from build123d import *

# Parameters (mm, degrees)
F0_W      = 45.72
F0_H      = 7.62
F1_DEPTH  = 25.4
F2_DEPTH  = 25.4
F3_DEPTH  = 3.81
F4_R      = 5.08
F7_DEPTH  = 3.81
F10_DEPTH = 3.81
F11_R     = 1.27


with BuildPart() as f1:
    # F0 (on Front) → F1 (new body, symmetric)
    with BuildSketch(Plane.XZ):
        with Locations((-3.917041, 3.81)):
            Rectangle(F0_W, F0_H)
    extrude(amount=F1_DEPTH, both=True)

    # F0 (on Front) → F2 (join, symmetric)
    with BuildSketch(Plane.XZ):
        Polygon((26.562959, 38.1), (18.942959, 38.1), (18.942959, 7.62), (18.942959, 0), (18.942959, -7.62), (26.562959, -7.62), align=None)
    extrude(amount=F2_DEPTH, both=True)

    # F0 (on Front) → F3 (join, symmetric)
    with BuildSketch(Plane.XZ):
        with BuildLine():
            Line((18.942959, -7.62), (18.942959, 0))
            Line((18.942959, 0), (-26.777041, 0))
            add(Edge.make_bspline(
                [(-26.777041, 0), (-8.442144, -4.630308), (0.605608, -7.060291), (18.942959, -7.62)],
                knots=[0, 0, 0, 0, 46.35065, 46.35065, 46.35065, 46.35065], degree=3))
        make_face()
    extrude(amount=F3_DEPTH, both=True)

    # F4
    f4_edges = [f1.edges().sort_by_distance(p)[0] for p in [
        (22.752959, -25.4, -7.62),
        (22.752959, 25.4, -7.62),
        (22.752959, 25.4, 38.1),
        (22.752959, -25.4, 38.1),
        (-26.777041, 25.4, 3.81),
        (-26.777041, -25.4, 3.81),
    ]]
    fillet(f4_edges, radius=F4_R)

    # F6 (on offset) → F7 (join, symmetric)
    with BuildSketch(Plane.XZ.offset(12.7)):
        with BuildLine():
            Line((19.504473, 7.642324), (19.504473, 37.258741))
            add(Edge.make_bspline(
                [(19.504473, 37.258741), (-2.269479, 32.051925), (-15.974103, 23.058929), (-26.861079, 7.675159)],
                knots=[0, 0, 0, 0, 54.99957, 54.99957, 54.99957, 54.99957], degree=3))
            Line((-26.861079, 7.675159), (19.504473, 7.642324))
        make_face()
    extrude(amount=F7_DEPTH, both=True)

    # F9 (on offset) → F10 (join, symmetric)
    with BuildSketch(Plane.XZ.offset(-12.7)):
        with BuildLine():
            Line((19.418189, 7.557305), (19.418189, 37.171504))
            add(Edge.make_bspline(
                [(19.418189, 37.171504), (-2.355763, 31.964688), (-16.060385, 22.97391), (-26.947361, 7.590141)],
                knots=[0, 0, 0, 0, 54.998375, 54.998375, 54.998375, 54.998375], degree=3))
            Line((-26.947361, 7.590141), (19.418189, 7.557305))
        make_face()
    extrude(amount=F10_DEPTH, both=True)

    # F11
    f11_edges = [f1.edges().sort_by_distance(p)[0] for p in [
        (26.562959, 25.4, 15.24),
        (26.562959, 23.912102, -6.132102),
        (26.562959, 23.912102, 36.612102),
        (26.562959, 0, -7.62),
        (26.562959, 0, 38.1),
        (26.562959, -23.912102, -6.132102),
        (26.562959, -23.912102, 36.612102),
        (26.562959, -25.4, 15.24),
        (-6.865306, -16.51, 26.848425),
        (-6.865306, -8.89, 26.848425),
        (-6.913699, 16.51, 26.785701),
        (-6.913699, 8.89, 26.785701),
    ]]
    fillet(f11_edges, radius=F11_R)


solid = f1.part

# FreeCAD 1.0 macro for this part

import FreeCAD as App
import Part
import Sketcher

V = App.Vector
Q = App.Units.Quantity


def edges_at(feature, points):
    """Names of the edges that pass closest to the given points."""
    edges = feature.Shape.Edges
    near = lambda p: min(range(len(edges)), key=lambda i: edges[i].distToShape(Part.Vertex(*p))[0])
    return sorted({f"Edge{near(p) + 1}" for p in points})

doc = App.newDocument("Part")
params = doc.addObject("Spreadsheet::Sheet", "Params")
for row, (alias, value) in enumerate([
    ("sketch1_width", "1.8 in"),
    ("sketch1_height", "0.3 in"),
    ("pad1_length", "2 in"),
    ("sketch2_width", "0.3 in"),
    ("sketch2_height", "1.8 in"),
    ("pad2_length", "2 in"),
    ("pad3_length", "0.3 in"),
    ("fillet_radius", "0.2 in"),
    ("pad4_length", "0.3 in"),
    ("pad5_length", "0.3 in"),
    ("fillet2_radius", "0.05 in"),
], start=1):
    params.set(f"A{row}", alias)
    params.set(f"B{row}", "=" + value)
    params.setAlias(f"B{row}", alias)

body = doc.addObject("PartDesign::Body", "Body")

sketch1 = body.newObject("Sketcher::SketchObject", "Sketch")
sketch1.AttachmentSupport = (doc.getObject("XZ_Plane"), [""])
sketch1.MapMode = "FlatFace"
sketch1.addGeometry([
    Part.LineSegment(V(-27, 8, 0), V(-27, 0, 0)),
    Part.LineSegment(V(-27, 0, 0), V(19, 0, 0)),
    Part.LineSegment(V(19, 0, 0), V(19, 8, 0)),
    Part.LineSegment(V(19, 8, 0), V(-27, 8, 0)),
], False)
sketch1.addConstraint([
    Sketcher.Constraint("Coincident", 0, 2, 1, 1),
    Sketcher.Constraint("Coincident", 1, 2, 2, 1),
    Sketcher.Constraint("Coincident", 2, 2, 3, 1),
    Sketcher.Constraint("Coincident", 3, 2, 0, 1),
    Sketcher.Constraint("Vertical", 0),
    Sketcher.Constraint("Horizontal", 1),
    Sketcher.Constraint("Vertical", 2),
    Sketcher.Constraint("Horizontal", 3),
    Sketcher.Constraint("PointOnObject", 0, 2, -1),
    Sketcher.Constraint("DistanceX", 1, 1, 1, 2, Q("1.8 in")),
    Sketcher.Constraint("DistanceY", 0, 2, 0, 1, Q("0.3 in")),
    Sketcher.Constraint("DistanceX", 0, 2, -1, 1, Q("26.777041 mm")),
])
sketch1.setExpression("Constraints[9]", "Params.sketch1_width")
sketch1.setExpression("Constraints[10]", "Params.sketch1_height")
pad1 = body.newObject("PartDesign::Pad", "Pad")
pad1.Profile = sketch1
pad1.setExpression("Length", "Params.pad1_length")
pad1.Midplane = True

sketch2 = body.newObject("Sketcher::SketchObject", "Sketch001")
sketch2.AttachmentSupport = (doc.getObject("XZ_Plane"), [""])
sketch2.MapMode = "FlatFace"
sketch2.addGeometry([
    Part.LineSegment(V(27, 38, 0), V(19, 38, 0)),
    Part.LineSegment(V(19, 38, 0), V(19, -8, 0)),
    Part.LineSegment(V(19, -8, 0), V(27, -8, 0)),
    Part.LineSegment(V(27, -8, 0), V(27, 38, 0)),
], False)
sketch2.addConstraint([
    Sketcher.Constraint("Coincident", 0, 2, 1, 1),
    Sketcher.Constraint("Coincident", 1, 2, 2, 1),
    Sketcher.Constraint("Coincident", 2, 2, 3, 1),
    Sketcher.Constraint("Coincident", 3, 2, 0, 1),
    Sketcher.Constraint("Horizontal", 0),
    Sketcher.Constraint("Vertical", 1),
    Sketcher.Constraint("Horizontal", 2),
    Sketcher.Constraint("Vertical", 3),
    Sketcher.Constraint("DistanceX", 0, 2, 0, 1, Q("0.3 in")),
    Sketcher.Constraint("DistanceY", 1, 2, 1, 1, Q("1.8 in")),
    Sketcher.Constraint("DistanceY", -1, 1, 0, 2, Q("1.5 in")),
    Sketcher.Constraint("DistanceX", -1, 1, 0, 2, Q("18.942959 mm")),
])
sketch2.setExpression("Constraints[8]", "Params.sketch2_width")
sketch2.setExpression("Constraints[9]", "Params.sketch2_height")
pad2 = body.newObject("PartDesign::Pad", "Pad001")
pad2.Profile = sketch2
pad2.setExpression("Length", "Params.pad2_length")
pad2.Midplane = True

sketch3 = body.newObject("Sketcher::SketchObject", "Sketch002")
sketch3.AttachmentSupport = (doc.getObject("XZ_Plane"), [""])
sketch3.MapMode = "FlatFace"
sketch3.addGeometry([
    Part.LineSegment(V(18.942959, -7.62, 0), V(18.942959, 0, 0)),
    Part.LineSegment(V(18.942959, 0, 0), V(-26.777041, 0, 0)),
    Part.BSplineCurve([V(-26.777041, 0, 0), V(-8.442144, -4.630308, 0), V(0.605608, -7.060291, 0), V(18.942959, -7.62, 0)], [4, 4], [0, 46.35065], False, 3, [1, 1, 1, 1], False),
], False)
sketch3.addConstraint([
    Sketcher.Constraint("Block", 2),
    Sketcher.Constraint("Coincident", 0, 2, 1, 1),
    Sketcher.Constraint("Coincident", 1, 2, 2, 1),
    Sketcher.Constraint("Coincident", 2, 2, 0, 1),
    Sketcher.Constraint("Vertical", 0),
    Sketcher.Constraint("Horizontal", 1),
])
pad3 = body.newObject("PartDesign::Pad", "Pad002")
pad3.Profile = sketch3
pad3.setExpression("Length", "Params.pad3_length")
pad3.Midplane = True
doc.recompute()

fillet = body.newObject("PartDesign::Fillet", "Fillet")
fillet.Base = (pad3, edges_at(pad3, [
    (22.753, -25.4, -7.62),
    (22.753, 25.4, -7.62),
    (22.753, 25.4, 38.1),
    (22.753, -25.4, 38.1),
    (-26.777, 25.4, 3.81),
    (-26.777, -25.4, 3.81),
]))
fillet.setExpression("Radius", "Params.fillet_radius")

sketch4 = body.newObject("Sketcher::SketchObject", "Sketch003")
sketch4.AttachmentSupport = (doc.getObject("XZ_Plane"), [""])
sketch4.MapMode = "FlatFace"
sketch4.AttachmentOffset = App.Placement(V(0, 0, 0.5 * 25.4), App.Rotation())
sketch4.addGeometry([
    Part.LineSegment(V(19.504473, 7.642324, 0), V(19.504473, 37.258741, 0)),
    Part.BSplineCurve([V(19.504473, 37.258741, 0), V(-2.269479, 32.051925, 0), V(-15.974103, 23.058929, 0), V(-26.861079, 7.675159, 0)], [4, 4], [0, 54.99957], False, 3, [1, 1, 1, 1], False),
    Part.LineSegment(V(-26.861079, 7.675159, 0), V(19.504473, 7.642324, 0)),
], False)
sketch4.addConstraint([
    Sketcher.Constraint("Block", 1),
    Sketcher.Constraint("Coincident", 0, 2, 1, 1),
    Sketcher.Constraint("Coincident", 1, 2, 2, 1),
    Sketcher.Constraint("Coincident", 2, 2, 0, 1),
    Sketcher.Constraint("Vertical", 0),
    Sketcher.Constraint("DistanceY", 0, 1, 0, 2, Q("29.616417 mm")),
])
pad4 = body.newObject("PartDesign::Pad", "Pad003")
pad4.Profile = sketch4
pad4.setExpression("Length", "Params.pad4_length")
pad4.Midplane = True

sketch5 = body.newObject("Sketcher::SketchObject", "Sketch004")
sketch5.AttachmentSupport = (doc.getObject("XZ_Plane"), [""])
sketch5.MapMode = "FlatFace"
sketch5.AttachmentOffset = App.Placement(V(0, 0, -0.5 * 25.4), App.Rotation())
sketch5.addGeometry([
    Part.LineSegment(V(19.418189, 7.557305, 0), V(19.418189, 37.171504, 0)),
    Part.BSplineCurve([V(19.418189, 37.171504, 0), V(-2.355763, 31.964688, 0), V(-16.060385, 22.97391, 0), V(-26.947361, 7.590141, 0)], [4, 4], [0, 54.998375], False, 3, [1, 1, 1, 1], False),
    Part.LineSegment(V(-26.947361, 7.590141, 0), V(19.418189, 7.557305, 0)),
], False)
sketch5.addConstraint([
    Sketcher.Constraint("Block", 1),
    Sketcher.Constraint("Coincident", 0, 2, 1, 1),
    Sketcher.Constraint("Coincident", 1, 2, 2, 1),
    Sketcher.Constraint("Coincident", 2, 2, 0, 1),
    Sketcher.Constraint("Vertical", 0),
    Sketcher.Constraint("DistanceY", 0, 1, 0, 2, Q("29.614199 mm")),
])
pad5 = body.newObject("PartDesign::Pad", "Pad004")
pad5.Profile = sketch5
pad5.setExpression("Length", "Params.pad5_length")
pad5.Midplane = True
doc.recompute()

fillet2 = body.newObject("PartDesign::Fillet", "Fillet001")
fillet2.Base = (pad5, edges_at(pad5, [
    (26.563, 25.4, 15.24),
    (26.563, 23.912, -6.132),
    (26.563, 23.912, 36.612),
    (26.563, 0, -7.62),
    (26.563, 0, 38.1),
    (26.563, -23.912, -6.132),
    (26.563, -23.912, 36.612),
    (26.563, -25.4, 15.24),
    (-6.865, -16.51, 26.848),
    (-6.865, -8.89, 26.848),
    (-6.914, 16.51, 26.786),
    (-6.914, 8.89, 26.786),
]))
fillet2.setExpression("Radius", "Params.fillet2_radius")

doc.recompute()
